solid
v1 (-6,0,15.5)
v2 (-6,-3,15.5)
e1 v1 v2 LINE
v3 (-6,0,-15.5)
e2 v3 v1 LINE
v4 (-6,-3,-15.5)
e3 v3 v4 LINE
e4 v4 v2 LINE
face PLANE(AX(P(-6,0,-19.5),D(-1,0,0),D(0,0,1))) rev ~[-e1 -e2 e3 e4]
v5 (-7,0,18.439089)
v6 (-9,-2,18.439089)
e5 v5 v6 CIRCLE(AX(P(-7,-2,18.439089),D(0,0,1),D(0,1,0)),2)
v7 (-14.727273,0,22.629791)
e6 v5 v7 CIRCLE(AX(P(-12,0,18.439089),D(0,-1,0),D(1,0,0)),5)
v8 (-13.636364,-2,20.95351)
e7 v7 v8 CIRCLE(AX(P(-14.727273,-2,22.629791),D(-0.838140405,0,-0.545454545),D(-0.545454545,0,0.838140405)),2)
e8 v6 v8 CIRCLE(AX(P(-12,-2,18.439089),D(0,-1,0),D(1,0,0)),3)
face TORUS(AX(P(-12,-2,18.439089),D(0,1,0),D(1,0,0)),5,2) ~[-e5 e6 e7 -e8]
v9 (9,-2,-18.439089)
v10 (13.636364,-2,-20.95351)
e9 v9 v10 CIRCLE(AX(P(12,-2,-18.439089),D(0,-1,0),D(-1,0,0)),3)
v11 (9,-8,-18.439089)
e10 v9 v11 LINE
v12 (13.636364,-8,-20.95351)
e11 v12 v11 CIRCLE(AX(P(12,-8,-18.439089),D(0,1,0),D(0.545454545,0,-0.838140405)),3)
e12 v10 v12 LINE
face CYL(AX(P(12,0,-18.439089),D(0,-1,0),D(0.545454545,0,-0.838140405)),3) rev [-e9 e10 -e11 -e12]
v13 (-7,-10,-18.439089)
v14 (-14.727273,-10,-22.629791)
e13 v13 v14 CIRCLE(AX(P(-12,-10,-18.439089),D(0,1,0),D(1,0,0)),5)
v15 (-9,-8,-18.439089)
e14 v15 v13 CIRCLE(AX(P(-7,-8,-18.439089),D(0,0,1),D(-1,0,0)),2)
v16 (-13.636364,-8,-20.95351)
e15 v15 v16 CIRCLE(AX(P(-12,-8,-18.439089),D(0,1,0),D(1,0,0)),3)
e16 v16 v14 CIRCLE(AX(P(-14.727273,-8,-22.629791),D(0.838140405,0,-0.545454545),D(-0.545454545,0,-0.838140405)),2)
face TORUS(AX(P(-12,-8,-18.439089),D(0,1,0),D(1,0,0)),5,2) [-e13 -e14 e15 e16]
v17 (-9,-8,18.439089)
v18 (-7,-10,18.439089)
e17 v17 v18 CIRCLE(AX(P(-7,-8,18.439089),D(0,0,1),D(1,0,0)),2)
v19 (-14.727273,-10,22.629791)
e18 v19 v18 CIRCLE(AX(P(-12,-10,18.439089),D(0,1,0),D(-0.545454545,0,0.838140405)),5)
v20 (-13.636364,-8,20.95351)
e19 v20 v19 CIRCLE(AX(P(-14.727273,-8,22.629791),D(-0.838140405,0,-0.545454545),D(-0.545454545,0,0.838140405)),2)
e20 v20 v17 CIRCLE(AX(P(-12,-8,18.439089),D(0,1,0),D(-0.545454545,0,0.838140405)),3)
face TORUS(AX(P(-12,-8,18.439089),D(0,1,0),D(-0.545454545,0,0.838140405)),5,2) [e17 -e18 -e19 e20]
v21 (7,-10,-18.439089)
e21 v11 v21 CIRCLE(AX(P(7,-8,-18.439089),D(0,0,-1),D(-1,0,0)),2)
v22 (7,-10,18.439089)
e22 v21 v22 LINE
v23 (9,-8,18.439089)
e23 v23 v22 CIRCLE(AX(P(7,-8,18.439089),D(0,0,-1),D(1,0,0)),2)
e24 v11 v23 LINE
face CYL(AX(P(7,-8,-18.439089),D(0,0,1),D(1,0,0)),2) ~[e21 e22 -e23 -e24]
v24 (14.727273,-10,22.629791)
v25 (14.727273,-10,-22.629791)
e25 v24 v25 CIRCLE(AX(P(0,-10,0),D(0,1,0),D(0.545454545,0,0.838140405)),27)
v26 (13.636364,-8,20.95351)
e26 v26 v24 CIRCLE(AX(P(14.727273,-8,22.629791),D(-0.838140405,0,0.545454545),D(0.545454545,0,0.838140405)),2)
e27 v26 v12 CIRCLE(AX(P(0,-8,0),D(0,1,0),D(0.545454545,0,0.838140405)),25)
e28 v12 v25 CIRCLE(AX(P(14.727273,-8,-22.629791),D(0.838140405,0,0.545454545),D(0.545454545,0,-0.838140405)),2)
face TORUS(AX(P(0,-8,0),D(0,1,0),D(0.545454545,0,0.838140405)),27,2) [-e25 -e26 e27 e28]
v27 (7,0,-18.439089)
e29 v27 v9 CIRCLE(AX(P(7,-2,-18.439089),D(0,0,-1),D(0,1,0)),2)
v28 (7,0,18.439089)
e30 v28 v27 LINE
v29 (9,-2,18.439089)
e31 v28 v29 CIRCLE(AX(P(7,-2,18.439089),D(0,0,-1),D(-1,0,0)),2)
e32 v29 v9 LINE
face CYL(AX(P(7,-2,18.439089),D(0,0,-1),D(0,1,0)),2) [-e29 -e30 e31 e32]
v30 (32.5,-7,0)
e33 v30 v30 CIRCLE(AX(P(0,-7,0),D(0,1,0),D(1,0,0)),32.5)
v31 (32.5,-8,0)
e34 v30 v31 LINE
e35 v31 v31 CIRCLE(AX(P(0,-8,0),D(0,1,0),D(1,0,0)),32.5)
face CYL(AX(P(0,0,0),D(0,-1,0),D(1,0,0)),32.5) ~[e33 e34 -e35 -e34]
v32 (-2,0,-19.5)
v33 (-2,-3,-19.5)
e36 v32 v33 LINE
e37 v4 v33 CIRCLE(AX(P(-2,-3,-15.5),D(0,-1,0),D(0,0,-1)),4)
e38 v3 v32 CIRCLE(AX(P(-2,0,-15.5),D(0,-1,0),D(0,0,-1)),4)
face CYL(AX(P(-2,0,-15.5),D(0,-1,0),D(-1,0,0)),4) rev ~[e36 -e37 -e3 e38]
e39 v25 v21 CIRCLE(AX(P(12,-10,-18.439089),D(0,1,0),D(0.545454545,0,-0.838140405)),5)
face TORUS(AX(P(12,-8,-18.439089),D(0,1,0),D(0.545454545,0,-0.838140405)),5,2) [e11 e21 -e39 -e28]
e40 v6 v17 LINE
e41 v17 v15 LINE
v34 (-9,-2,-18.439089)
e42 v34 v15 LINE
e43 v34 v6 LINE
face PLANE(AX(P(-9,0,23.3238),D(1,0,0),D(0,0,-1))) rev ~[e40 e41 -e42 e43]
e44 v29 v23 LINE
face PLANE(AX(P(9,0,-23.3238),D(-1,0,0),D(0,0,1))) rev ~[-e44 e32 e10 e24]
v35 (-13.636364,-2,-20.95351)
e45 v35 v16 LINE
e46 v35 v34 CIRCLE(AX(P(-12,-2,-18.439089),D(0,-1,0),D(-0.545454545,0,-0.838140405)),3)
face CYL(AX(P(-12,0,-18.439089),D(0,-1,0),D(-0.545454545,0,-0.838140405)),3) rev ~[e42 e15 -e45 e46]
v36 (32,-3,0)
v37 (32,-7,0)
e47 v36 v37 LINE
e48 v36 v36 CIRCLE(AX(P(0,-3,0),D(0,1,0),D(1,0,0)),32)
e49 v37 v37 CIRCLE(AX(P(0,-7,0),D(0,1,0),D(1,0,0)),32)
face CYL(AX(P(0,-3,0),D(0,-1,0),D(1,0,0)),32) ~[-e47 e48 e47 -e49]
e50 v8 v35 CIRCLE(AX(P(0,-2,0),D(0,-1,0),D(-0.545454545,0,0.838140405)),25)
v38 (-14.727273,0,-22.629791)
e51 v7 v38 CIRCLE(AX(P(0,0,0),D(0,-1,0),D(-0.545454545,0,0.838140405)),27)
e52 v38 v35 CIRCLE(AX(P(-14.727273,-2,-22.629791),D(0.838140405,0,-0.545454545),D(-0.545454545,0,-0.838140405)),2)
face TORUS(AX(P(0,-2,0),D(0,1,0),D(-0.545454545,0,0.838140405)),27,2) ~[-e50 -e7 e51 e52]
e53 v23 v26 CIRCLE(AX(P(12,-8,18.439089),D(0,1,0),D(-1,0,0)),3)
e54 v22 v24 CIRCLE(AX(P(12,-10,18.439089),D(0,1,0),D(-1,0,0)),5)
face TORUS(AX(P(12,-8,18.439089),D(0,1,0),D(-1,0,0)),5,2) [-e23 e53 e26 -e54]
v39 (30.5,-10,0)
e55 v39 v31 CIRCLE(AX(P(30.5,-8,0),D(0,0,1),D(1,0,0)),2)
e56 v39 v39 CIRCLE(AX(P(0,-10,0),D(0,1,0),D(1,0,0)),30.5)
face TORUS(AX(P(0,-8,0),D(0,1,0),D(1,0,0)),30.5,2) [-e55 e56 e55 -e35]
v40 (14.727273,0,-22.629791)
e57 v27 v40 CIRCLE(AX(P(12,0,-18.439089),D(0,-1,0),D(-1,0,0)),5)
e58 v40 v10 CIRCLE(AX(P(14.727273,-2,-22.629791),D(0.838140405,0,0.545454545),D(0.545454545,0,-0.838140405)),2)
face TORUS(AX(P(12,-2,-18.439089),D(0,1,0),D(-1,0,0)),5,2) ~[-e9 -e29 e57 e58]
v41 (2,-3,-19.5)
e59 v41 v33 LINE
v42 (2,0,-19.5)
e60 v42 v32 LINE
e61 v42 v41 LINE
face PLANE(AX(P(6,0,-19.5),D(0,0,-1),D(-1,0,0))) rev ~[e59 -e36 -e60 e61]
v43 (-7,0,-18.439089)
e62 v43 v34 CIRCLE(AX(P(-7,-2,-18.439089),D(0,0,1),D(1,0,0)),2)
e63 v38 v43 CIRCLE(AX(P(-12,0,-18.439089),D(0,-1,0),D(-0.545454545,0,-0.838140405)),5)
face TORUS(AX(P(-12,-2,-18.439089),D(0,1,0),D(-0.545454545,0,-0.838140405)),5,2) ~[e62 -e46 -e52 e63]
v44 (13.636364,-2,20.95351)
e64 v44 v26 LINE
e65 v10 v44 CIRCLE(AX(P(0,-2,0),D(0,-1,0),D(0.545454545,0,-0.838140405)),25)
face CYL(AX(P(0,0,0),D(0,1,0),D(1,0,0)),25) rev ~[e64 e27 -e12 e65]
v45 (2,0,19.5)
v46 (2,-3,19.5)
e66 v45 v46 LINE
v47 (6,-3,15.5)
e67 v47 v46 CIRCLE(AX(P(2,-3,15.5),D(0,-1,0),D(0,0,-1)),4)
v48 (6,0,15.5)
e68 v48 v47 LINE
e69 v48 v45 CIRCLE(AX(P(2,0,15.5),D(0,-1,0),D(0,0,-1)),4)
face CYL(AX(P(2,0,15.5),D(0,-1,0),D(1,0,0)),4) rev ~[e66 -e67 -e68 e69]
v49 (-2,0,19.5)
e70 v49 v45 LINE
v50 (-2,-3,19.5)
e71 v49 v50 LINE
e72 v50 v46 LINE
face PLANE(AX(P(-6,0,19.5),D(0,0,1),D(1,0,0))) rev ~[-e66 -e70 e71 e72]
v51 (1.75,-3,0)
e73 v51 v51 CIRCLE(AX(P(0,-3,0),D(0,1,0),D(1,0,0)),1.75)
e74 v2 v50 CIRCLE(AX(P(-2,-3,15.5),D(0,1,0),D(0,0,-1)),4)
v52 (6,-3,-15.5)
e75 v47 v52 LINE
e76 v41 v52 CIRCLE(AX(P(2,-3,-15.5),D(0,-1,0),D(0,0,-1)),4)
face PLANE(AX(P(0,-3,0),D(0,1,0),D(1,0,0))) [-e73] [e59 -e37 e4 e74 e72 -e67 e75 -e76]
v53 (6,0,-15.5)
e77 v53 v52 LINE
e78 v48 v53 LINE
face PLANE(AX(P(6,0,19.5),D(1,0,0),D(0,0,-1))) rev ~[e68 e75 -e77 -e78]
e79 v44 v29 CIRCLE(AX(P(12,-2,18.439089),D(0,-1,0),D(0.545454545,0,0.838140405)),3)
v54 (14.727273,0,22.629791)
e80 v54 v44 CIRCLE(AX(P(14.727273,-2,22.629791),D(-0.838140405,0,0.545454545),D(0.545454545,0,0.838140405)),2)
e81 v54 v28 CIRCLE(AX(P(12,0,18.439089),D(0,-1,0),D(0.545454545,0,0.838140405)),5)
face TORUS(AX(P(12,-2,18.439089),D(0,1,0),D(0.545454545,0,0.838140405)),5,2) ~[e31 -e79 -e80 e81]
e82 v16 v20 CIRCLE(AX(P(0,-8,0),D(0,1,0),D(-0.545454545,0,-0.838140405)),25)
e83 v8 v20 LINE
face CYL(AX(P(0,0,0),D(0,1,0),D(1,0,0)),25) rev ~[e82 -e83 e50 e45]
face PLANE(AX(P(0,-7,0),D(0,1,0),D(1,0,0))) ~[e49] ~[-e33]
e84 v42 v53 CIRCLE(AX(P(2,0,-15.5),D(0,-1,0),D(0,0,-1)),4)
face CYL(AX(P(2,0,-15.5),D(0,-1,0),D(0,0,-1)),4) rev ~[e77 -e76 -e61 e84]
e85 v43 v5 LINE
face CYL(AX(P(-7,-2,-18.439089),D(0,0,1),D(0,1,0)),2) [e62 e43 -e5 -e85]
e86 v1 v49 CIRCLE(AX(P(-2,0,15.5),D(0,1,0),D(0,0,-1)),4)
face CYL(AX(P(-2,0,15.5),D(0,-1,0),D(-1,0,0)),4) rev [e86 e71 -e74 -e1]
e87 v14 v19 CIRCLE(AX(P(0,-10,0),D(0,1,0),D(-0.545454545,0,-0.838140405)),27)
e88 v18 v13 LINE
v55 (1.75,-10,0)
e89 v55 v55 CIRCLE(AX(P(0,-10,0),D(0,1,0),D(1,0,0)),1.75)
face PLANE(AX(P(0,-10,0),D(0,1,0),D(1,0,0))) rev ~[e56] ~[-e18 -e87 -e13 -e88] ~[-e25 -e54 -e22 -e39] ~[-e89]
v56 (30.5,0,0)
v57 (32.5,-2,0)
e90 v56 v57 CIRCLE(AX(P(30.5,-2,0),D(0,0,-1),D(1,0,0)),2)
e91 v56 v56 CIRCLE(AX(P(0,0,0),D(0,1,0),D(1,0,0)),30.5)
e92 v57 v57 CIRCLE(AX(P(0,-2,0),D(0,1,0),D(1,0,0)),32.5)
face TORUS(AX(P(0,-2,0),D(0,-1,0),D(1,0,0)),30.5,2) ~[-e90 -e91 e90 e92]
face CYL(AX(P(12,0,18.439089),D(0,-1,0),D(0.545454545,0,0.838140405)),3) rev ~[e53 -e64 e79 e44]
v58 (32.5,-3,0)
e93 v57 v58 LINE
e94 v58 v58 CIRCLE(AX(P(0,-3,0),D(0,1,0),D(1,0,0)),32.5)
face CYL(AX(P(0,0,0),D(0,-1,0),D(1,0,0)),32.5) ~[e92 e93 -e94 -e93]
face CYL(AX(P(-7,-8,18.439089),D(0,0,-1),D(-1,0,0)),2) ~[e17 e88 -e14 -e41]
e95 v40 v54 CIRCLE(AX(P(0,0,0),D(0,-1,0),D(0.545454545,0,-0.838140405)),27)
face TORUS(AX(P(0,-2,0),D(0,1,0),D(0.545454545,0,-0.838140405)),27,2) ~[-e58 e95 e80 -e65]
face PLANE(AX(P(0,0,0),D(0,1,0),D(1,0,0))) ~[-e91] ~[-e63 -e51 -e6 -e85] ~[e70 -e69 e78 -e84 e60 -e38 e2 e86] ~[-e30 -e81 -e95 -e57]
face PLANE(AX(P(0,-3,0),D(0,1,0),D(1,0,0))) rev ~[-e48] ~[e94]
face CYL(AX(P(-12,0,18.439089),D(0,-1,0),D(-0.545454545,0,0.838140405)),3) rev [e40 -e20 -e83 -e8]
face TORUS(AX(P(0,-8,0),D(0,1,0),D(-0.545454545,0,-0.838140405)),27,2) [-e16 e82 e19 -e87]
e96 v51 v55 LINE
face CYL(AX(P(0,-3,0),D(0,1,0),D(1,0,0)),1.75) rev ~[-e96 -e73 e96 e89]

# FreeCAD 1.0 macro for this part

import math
import FreeCAD as App
import Part
import Sketcher


def edges_at(feature, points):
    """Names of the edges that pass closest to the given points."""
    edges = feature.Shape.Edges
    near = lambda p: min(range(len(edges)), key=lambda i: edges[i].distToShape(Part.Vertex(*p))[0])
    return sorted({f"Edge{near(p) + 1}" for p in points})

doc = App.newDocument("Part")
params = doc.addObject("Spreadsheet::Sheet", "Params")
for row, (alias, value) in enumerate([
    ("sketch1_height", "10 mm"),
    ("sketch1_height2", "3 mm"),
    ("sketch1_width", "32.5 mm"),
    ("sketch1_width2", "0.5 mm"),
    ("revolution_angle", "360 deg"),
    ("sketch2_width", "12 mm"),
    ("sketch2_height", "39 mm"),
    ("pocket1_length", "3 mm"),
    ("fillet_radius", "4 mm"),
    ("sketch3_diameter", "3.5 mm"),
    ("pocket2_length", "10 mm"),
    ("fillet2_radius", "2 mm"),
    ("sketch4_radius", "25 mm"),
    ("pocket3_length", "38.5 mm"),
    ("fillet3_radius", "3 mm"),
    ("fillet4_radius", "2 mm"),
], start=1):
    params.set(f"A{row}", alias)
    params.set(f"B{row}", "=" + value)
    params.setAlias(f"B{row}", alias)

body = doc.addObject("PartDesign::Body", "Body")

# Sketch on XY plane
sketch1 = doc.addObject("Sketcher::SketchObject", "Sketch")
body.addObject(sketch1)
sketch1.AttachmentSupport = (doc.XY_Plane, [""])
sketch1.MapMode = "FlatFace"
sketch1.addGeometry(Part.LineSegment(App.Vector(32.5, 0, 0), App.Vector(0, 0, 0)), False)
sketch1.addGeometry(Part.LineSegment(App.Vector(0, 0, 0), App.Vector(0, -10, 0)), False)
sketch1.addGeometry(Part.LineSegment(App.Vector(0, -10, 0), App.Vector(32.5, -10, 0)), False)
sketch1.addGeometry(Part.LineSegment(App.Vector(32.5, -10, 0), App.Vector(32.5, -7, 0)), False)
sketch1.addGeometry(Part.LineSegment(App.Vector(32.5, -7, 0), App.Vector(32, -7, 0)), False)
sketch1.addGeometry(Part.LineSegment(App.Vector(32, -7, 0), App.Vector(32, -3, 0)), False)
sketch1.addGeometry(Part.LineSegment(App.Vector(32, -3, 0), App.Vector(32.5, -3, 0)), False)
sketch1.addGeometry(Part.LineSegment(App.Vector(32.5, -3, 0), App.Vector(32.5, 0, 0)), False)
sketch1.addConstraint(Sketcher.Constraint("Coincident", 0, 2, 1, 1))
sketch1.addConstraint(Sketcher.Constraint("Coincident", 1, 2, 2, 1))
sketch1.addConstraint(Sketcher.Constraint("Coincident", 2, 2, 3, 1))
sketch1.addConstraint(Sketcher.Constraint("Coincident", 3, 2, 4, 1))
sketch1.addConstraint(Sketcher.Constraint("Coincident", 4, 2, 5, 1))
sketch1.addConstraint(Sketcher.Constraint("Coincident", 5, 2, 6, 1))
sketch1.addConstraint(Sketcher.Constraint("Coincident", 6, 2, 7, 1))
sketch1.addConstraint(Sketcher.Constraint("Coincident", 7, 2, 0, 1))
sketch1.addConstraint(Sketcher.Constraint("Horizontal", 0))
sketch1.addConstraint(Sketcher.Constraint("Vertical", 1))
sketch1.addConstraint(Sketcher.Constraint("Horizontal", 2))
sketch1.addConstraint(Sketcher.Constraint("Vertical", 3))
sketch1.addConstraint(Sketcher.Constraint("Horizontal", 4))
sketch1.addConstraint(Sketcher.Constraint("Vertical", 5))
sketch1.addConstraint(Sketcher.Constraint("Horizontal", 6))
sketch1.addConstraint(Sketcher.Constraint("Vertical", 7))
sketch1.addConstraint(Sketcher.Constraint("Coincident", 0, 2, -1, 1))
sketch1.addConstraint(Sketcher.Constraint("Vertical", 3, 2, 6, 2))
sketch1.addConstraint(Sketcher.Constraint("Equal", 3, 7))
sketch1.addConstraint(Sketcher.Constraint("DistanceY", 1, 2, 1, 1, 10.0))
sketch1.addConstraint(Sketcher.Constraint("DistanceY", 3, 1, 3, 2, 3.0))
sketch1.addConstraint(Sketcher.Constraint("DistanceX", 0, 2, 0, 1, 32.5))
sketch1.addConstraint(Sketcher.Constraint("DistanceX", 4, 2, 4, 1, 0.5))
sketch1.setExpression("Constraints[19]", "Params.sketch1_height")
sketch1.setExpression("Constraints[20]", "Params.sketch1_height2")
sketch1.setExpression("Constraints[21]", "Params.sketch1_width")
sketch1.setExpression("Constraints[22]", "Params.sketch1_width2")
revolution = doc.addObject("PartDesign::Revolution", "Revolution")
body.addObject(revolution)
revolution.Profile = sketch1
revolution.ReferenceAxis = (sketch1, ["V_Axis"])
revolution.setExpression("Angle", "Params.revolution_angle")

# Sketch on XZ plane
sketch2 = doc.addObject("Sketcher::SketchObject", "Sketch001")
body.addObject(sketch2)
sketch2.AttachmentSupport = (doc.XZ_Plane, [""])
sketch2.MapMode = "FlatFace"
sketch2.addGeometry(Part.LineSegment(App.Vector(-6, 20, 0), App.Vector(6, 20, 0)), False)
sketch2.addGeometry(Part.LineSegment(App.Vector(6, 20, 0), App.Vector(6, -20, 0)), False)
sketch2.addGeometry(Part.LineSegment(App.Vector(6, -20, 0), App.Vector(-6, -20, 0)), False)
sketch2.addGeometry(Part.LineSegment(App.Vector(-6, -20, 0), App.Vector(-6, 20, 0)), False)
sketch2.addConstraint(Sketcher.Constraint("Coincident", 0, 2, 1, 1))
sketch2.addConstraint(Sketcher.Constraint("Coincident", 1, 2, 2, 1))
sketch2.addConstraint(Sketcher.Constraint("Coincident", 2, 2, 3, 1))
sketch2.addConstraint(Sketcher.Constraint("Coincident", 3, 2, 0, 1))
sketch2.addConstraint(Sketcher.Constraint("Horizontal", 0))
sketch2.addConstraint(Sketcher.Constraint("Vertical", 1))
sketch2.addConstraint(Sketcher.Constraint("Horizontal", 2))
sketch2.addConstraint(Sketcher.Constraint("Vertical", 3))
sketch2.addConstraint(Sketcher.Constraint("Symmetric", 0, 2, 2, 2, -1, 1))
sketch2.addConstraint(Sketcher.Constraint("DistanceX", 0, 1, 0, 2, 12.0))
sketch2.addConstraint(Sketcher.Constraint("DistanceY", 1, 2, 1, 1, 39.0))
sketch2.setExpression("Constraints[9]", "Params.sketch2_width")
sketch2.setExpression("Constraints[10]", "Params.sketch2_height")
pocket1 = doc.addObject("PartDesign::Pocket", "Pocket")
body.addObject(pocket1)
pocket1.Profile = sketch2
pocket1.setExpression("Length", "Params.pocket1_length")
pocket1.Reversed = True
doc.recompute()

fillet = doc.addObject("PartDesign::Fillet", "Fillet")
body.addObject(fillet)
fillet.Base = (pocket1, edges_at(pocket1, [
    (-6, -1.5, -19.5),
    (6, -1.5, -19.5),
    (-6, -1.5, 19.5),
    (6, -1.5, 19.5),
]))
fillet.setExpression("Radius", "Params.fillet_radius")

# Sketch on XZ plane
sketch3 = doc.addObject("Sketcher::SketchObject", "Sketch002")
body.addObject(sketch3)
sketch3.AttachmentSupport = (doc.XZ_Plane, [""])
sketch3.MapMode = "FlatFace"
sketch3.AttachmentOffset = App.Placement(App.Vector(0, 0, 3), App.Rotation())
sketch3.addGeometry(Part.Circle(App.Vector(0, 0, 0), App.Vector(0, 0, 1), 1.8), False)
sketch3.addConstraint(Sketcher.Constraint("Coincident", 0, 3, -1, 1))
sketch3.addConstraint(Sketcher.Constraint("Diameter", 0, 3.5))
sketch3.setExpression("Constraints[1]", "Params.sketch3_diameter")
pocket2 = doc.addObject("PartDesign::Pocket", "Pocket001")
body.addObject(pocket2)
pocket2.Profile = sketch3
pocket2.setExpression("Length", "Params.pocket2_length")
pocket2.Reversed = True
doc.recompute()

fillet2 = doc.addObject("PartDesign::Fillet", "Fillet001")
body.addObject(fillet2)
fillet2.Base = (pocket2, edges_at(pocket2, [(-32.5, 0, 0), (-32.5, -10, 0)]))
fillet2.setExpression("Radius", "Params.fillet2_radius")

# Sketch on XZ plane
sketch4 = doc.addObject("Sketcher::SketchObject", "Sketch003")
body.addObject(sketch4)
sketch4.AttachmentSupport = (doc.XZ_Plane, [""])
sketch4.MapMode = "FlatFace"
sketch4.addGeometry(Part.ArcOfCircle(Part.Circle(App.Vector(0, 0, 0), App.Vector(0, 0, 1), 25), math.radians(-69), math.radians(69)), False)
sketch4.addGeometry(Part.LineSegment(App.Vector(9, 23, 0), App.Vector(9, -23, 0)), False)
sketch4.addGeometry(Part.LineSegment(App.Vector(-9, 23, 0), App.Vector(-9, -23, 0)), False)
sketch4.addGeometry(Part.ArcOfCircle(Part.Circle(App.Vector(0, 0, 0), App.Vector(0, 0, 1), 25), math.radians(111), math.radians(249)), False)
sketch4.addConstraint(Sketcher.Constraint("Coincident", 0, 1, 1, 2))
sketch4.addConstraint(Sketcher.Constraint("Coincident", 1, 1, 0, 2))
sketch4.addConstraint(Sketcher.Constraint("Coincident", 2, 1, 3, 1))
sketch4.addConstraint(Sketcher.Constraint("Coincident", 3, 2, 2, 2))
sketch4.addConstraint(Sketcher.Constraint("Vertical", 1))
sketch4.addConstraint(Sketcher.Constraint("Vertical", 2))
sketch4.addConstraint(Sketcher.Constraint("Coincident", 0, 3, -1, 1))
sketch4.addConstraint(Sketcher.Constraint("Coincident", 3, 3, -1, 1))
sketch4.addConstraint(Sketcher.Constraint("Equal", 0, 3))
sketch4.addConstraint(Sketcher.Constraint("Horizontal", 1, 1, 2, 1))
sketch4.addConstraint(Sketcher.Constraint("Radius", 0, 25.0))
sketch4.addConstraint(Sketcher.Constraint("DistanceX", 2, 1, 1, 1, 18.0))
sketch4.setExpression("Constraints[10]", "Params.sketch4_radius")
pocket3 = doc.addObject("PartDesign::Pocket", "Pocket002")
body.addObject(pocket3)
pocket3.Profile = sketch4
pocket3.setExpression("Length", "Params.pocket3_length")
pocket3.Reversed = True
doc.recompute()

fillet3 = doc.addObject("PartDesign::Fillet", "Fillet002")
body.addObject(fillet3)
fillet3.Base = (pocket3, edges_at(pocket3, [
    (9, -5, 23.324),
    (9, -5, -23.324),
    (-9, -5, -23.324),
    (-9, -5, 23.324),
]))
fillet3.setExpression("Radius", "Params.fillet3_radius")
doc.recompute()

fillet4 = doc.addObject("PartDesign::Fillet", "Fillet003")
body.addObject(fillet4)
fillet4.Base = (fillet3, edges_at(fillet3, [
    (-10.57, 0, -21.076),
    (-9, 0, 0),
    (-10.57, 0, 21.076),
    (-25, 0, 0),
    (-10.57, -10, 21.076),
    (-9, -10, 0),
    (-10.57, -10, -21.076),
    (-25, -10, 0),
    (10.57, 0, 21.076),
    (9, 0, 0),
    (10.57, 0, -21.076),
    (25, 0, 0),
    (10.57, -10, -21.076),
    (9, -10, 0),
    (10.57, -10, 21.076),
    (25, -10, 0),
]))
fillet4.setExpression("Radius", "Params.fillet4_radius")

doc.recompute()
